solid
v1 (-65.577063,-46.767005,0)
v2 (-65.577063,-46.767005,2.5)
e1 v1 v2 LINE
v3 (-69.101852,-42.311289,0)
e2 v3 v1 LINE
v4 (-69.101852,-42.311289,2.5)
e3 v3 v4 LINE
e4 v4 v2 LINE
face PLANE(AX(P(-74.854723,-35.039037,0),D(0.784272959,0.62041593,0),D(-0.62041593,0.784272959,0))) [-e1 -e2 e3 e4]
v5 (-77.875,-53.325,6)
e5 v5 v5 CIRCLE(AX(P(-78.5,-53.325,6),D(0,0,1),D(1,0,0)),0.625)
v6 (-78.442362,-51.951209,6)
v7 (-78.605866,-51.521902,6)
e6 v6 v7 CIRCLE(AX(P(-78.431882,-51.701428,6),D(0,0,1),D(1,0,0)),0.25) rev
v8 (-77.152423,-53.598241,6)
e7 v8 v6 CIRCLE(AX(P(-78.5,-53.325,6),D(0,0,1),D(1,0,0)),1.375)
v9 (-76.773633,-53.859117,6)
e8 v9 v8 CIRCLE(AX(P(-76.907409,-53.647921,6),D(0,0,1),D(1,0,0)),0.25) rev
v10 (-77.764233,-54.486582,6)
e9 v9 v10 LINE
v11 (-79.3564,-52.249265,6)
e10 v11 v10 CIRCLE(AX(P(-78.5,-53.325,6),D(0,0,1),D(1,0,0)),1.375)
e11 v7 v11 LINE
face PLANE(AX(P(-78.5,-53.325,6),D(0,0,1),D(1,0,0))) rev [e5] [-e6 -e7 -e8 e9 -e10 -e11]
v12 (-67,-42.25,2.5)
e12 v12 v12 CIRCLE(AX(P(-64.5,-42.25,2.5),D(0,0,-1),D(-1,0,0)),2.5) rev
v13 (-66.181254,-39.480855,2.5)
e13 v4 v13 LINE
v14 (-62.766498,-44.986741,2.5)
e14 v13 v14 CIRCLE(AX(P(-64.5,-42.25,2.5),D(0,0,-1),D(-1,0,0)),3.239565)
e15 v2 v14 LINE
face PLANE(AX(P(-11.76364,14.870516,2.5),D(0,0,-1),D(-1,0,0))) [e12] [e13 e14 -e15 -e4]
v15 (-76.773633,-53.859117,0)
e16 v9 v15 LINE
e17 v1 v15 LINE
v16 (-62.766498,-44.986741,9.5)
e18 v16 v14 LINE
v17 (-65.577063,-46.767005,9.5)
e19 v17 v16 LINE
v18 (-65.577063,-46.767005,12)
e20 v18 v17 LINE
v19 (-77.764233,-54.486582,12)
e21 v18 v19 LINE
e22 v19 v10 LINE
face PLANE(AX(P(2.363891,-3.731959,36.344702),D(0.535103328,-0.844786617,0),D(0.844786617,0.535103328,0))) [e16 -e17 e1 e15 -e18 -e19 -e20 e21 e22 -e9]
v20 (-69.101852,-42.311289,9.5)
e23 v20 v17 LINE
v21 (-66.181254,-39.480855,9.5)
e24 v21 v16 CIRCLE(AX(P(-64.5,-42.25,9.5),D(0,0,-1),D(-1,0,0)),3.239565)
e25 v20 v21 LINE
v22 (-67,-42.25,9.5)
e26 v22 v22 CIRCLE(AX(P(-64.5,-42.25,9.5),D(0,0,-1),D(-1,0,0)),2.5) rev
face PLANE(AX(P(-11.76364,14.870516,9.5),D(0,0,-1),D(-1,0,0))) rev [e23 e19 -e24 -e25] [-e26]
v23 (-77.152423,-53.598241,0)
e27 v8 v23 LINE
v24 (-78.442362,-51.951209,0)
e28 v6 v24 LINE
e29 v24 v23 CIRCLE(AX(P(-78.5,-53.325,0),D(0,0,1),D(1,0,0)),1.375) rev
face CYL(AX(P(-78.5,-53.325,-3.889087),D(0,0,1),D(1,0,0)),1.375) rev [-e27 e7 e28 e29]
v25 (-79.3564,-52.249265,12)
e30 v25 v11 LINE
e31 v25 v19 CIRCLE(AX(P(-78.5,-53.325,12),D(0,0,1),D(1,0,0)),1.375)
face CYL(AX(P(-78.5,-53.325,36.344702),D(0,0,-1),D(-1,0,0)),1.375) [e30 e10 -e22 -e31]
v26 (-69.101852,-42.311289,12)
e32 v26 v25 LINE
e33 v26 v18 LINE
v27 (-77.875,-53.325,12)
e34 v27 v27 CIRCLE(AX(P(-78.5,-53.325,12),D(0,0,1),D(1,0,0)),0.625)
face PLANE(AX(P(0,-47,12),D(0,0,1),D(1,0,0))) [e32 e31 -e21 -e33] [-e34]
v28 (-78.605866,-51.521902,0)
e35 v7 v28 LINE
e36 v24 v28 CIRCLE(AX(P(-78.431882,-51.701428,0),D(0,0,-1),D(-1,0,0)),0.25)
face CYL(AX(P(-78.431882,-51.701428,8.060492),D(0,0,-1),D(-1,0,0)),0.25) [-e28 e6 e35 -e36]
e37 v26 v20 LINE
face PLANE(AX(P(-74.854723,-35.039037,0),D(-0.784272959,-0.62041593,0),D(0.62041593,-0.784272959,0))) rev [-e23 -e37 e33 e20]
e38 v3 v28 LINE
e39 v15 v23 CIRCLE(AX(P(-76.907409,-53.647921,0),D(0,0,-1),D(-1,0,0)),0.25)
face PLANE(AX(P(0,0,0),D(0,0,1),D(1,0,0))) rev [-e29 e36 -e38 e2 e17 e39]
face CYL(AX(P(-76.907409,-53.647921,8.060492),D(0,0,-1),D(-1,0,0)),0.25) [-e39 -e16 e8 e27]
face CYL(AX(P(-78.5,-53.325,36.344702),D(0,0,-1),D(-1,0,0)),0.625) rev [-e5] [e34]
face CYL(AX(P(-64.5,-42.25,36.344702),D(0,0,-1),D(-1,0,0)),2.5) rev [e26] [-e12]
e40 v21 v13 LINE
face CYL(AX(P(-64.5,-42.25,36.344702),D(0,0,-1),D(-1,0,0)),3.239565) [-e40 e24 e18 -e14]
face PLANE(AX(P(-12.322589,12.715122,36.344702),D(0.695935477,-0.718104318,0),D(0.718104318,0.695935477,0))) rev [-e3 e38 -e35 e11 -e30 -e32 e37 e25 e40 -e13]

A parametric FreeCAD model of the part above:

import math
import FreeCAD as App
import Part
import Sketcher

V = App.Vector
Q = App.Units.Quantity


def add_polygon(sketch, points):
    """Adds a closed chain of lines whose ends are joined by coincident constraints."""
    first, n = sketch.GeometryCount, len(points)
    for a, b in zip(points, points[1:] + points[:1]):
        sketch.addGeometry(Part.LineSegment(App.Vector(*a, 0), App.Vector(*b, 0)), False)
    for i in range(n):
        sketch.addConstraint(Sketcher.Constraint("Coincident", first + i, 2, first + (i + 1) % n, 1))

doc = App.newDocument("Part")
body = doc.addObject("PartDesign::Body", "Body")

# Sketch on XY plane
sketch1 = doc.addObject("Sketcher::SketchObject", "Sketch")
body.addObject(sketch1)
sketch1.AttachmentSupport = (doc.XY_Plane, [""])
sketch1.MapMode = "FlatFace"
sketch1.addGeometry(Part.ArcOfCircle(Part.Circle(V(-64.5, -42.2, 0), V(0, 0, 1), 3.2), math.radians(0), math.radians(121)), False)
sketch1.addGeometry(Part.LineSegment(V(-66.2, -39.5, 0), V(-67.2, -40.5, 0)), False)
sketch1.addGeometry(Part.LineSegment(V(-67.2, -40.5, 0), V(-71.4, -44.5, 0)), False)
sketch1.addGeometry(Part.LineSegment(V(-71.4, -44.5, 0), V(-79.4, -52.2, 0)), False)
sketch1.addGeometry(Part.ArcOfCircle(Part.Circle(V(-78.5, -53.3, 0), V(0, 0, 1), 1.4), math.radians(129), math.radians(302)), False)
sketch1.addGeometry(Part.LineSegment(V(-77.8, -54.5, 0), V(-65.9, -47, 0)), False)
sketch1.addGeometry(Part.LineSegment(V(-65.9, -47, 0), V(-62.8, -45, 0)), False)
sketch1.addGeometry(Part.ArcOfCircle(Part.Circle(V(-64.5, -42.2, 0), V(0, 0, 1), 3.2), math.radians(-58), math.radians(0)), False)
sketch1.addGeometry(Part.Circle(V(-64.5, -42.2, 0), V(0, 0, 1), 2.5), False)
sketch1.addGeometry(Part.Circle(V(-78.5, -53.3, 0), V(0, 0, 1), 0.6), False)
sketch1.addConstraint(Sketcher.Constraint("Coincident", 0, 2, 1, 1))
sketch1.addConstraint(Sketcher.Constraint("Coincident", 1, 2, 2, 1))
sketch1.addConstraint(Sketcher.Constraint("Coincident", 2, 2, 3, 1))
sketch1.addConstraint(Sketcher.Constraint("Coincident", 3, 2, 4, 1))
sketch1.addConstraint(Sketcher.Constraint("Tangent", 4, 2, 5, 1))
sketch1.addConstraint(Sketcher.Constraint("Coincident", 5, 2, 6, 1))
sketch1.addConstraint(Sketcher.Constraint("Tangent", 6, 2, 7, 1))
sketch1.addConstraint(Sketcher.Constraint("Tangent", 7, 2, 0, 1))
sketch1.addConstraint(Sketcher.Constraint("Coincident", 8, 3, 0, 3))
sketch1.addConstraint(Sketcher.Constraint("Coincident", 9, 3, 4, 3))
sketch1.addConstraint(Sketcher.Constraint("Equal", 0, 7))
sketch1.addConstraint(Sketcher.Constraint("Parallel", 1, 2))
sketch1.addConstraint(Sketcher.Constraint("Parallel", 2, 3))
sketch1.addConstraint(Sketcher.Constraint("Parallel", 5, 6))
sketch1.addConstraint(Sketcher.Constraint("Horizontal", 8, 3, 7, 2))
sketch1.addConstraint(Sketcher.Constraint("Diameter", 8, Q("5 mm")))
sketch1.addConstraint(Sketcher.Constraint("Diameter", 9, Q("1.25 mm")))
sketch1.addConstraint(Sketcher.Constraint("DistanceY", 5, 2, -1, 1, Q("47 mm")))
sketch1.addConstraint(Sketcher.Constraint("Radius", 4, Q("1.375 mm")))
sketch1.addConstraint(Sketcher.Constraint("DistanceX", 4, 3, 0, 3, Q("14 mm")))
sketch1.addConstraint(Sketcher.Constraint("DistanceX", 0, 3, -1, 1, Q("64.5 mm")))
sketch1.addConstraint(Sketcher.Constraint("DistanceY", 0, 3, -1, 1, Q("42.25 mm")))
sketch1.addConstraint(Sketcher.Constraint("DistanceY", 4, 3, -1, 1, Q("53.325 mm")))
sketch1.addConstraint(Sketcher.Constraint("Radius", 0, Q("3.239565 mm")))
sketch1.addConstraint(Sketcher.Constraint("DistanceX", 3, 2, -1, 1, Q("79.3564 mm")))
sketch1.addConstraint(Sketcher.Constraint("DistanceY", 3, 2, 1, 2, Q("11.7665 mm")))
sketch1.addConstraint(Sketcher.Constraint("Distance", 1, Q("1.439661 mm")))
sketch1.addConstraint(Sketcher.Constraint("DistanceY", 2, 2, 1, 2, Q("4.060161 mm")))
pad1 = doc.addObject("PartDesign::Pad", "Pad")
body.addObject(pad1)
pad1.Profile = sketch1
pad1.Length = 12

# Sketch on XY plane
sketch2 = doc.addObject("Sketcher::SketchObject", "Sketch001")
body.addObject(sketch2)
sketch2.AttachmentSupport = (doc.XY_Plane, [""])
sketch2.MapMode = "FlatFace"
sketch2.addGeometry(Part.Circle(V(-78.5, -53.3, 0), V(0, 0, 1), 1.4), False)
sketch2.addGeometry(Part.Circle(V(-78.5, -53.3, 0), V(0, 0, 1), 0.6), False)
sketch2.addConstraint(Sketcher.Constraint("Coincident", 1, 3, 0, 3))
sketch2.addConstraint(Sketcher.Constraint("Diameter", 0, Q("2.75 mm")))
sketch2.addConstraint(Sketcher.Constraint("Diameter", 1, Q("1.25 mm")))
sketch2.addConstraint(Sketcher.Constraint("DistanceX", 0, 3, -1, 1, Q("78.5 mm")))
sketch2.addConstraint(Sketcher.Constraint("DistanceY", 0, 3, -1, 1, Q("53.325 mm")))
pocket1 = doc.addObject("PartDesign::Pocket", "Pocket")
body.addObject(pocket1)
pocket1.Profile = sketch2
pocket1.Length = 6
pocket1.Reversed = True

# Sketch on XY plane
sketch3 = doc.addObject("Sketcher::SketchObject", "Sketch002")
body.addObject(sketch3)
sketch3.AttachmentSupport = (doc.XY_Plane, [""])
sketch3.MapMode = "FlatFace"
sketch3.addGeometry(Part.ArcOfCircle(Part.Circle(V(-78.43, -51.7, 0), V(0, 0, 1), 0.25), math.radians(134), math.radians(180)), False)
sketch3.addGeometry(Part.ArcOfCircle(Part.Circle(V(-78.43, -51.7, 0), V(0, 0, 1), 0.25), math.radians(180), math.radians(268)), False)
sketch3.addGeometry(Part.ArcOfCircle(Part.Circle(V(-78.5, -53.32, 0), V(0, 0, 1), 1.37), math.radians(82.84), math.radians(87.6)), False)
sketch3.addGeometry(Part.LineSegment(V(-78.33, -51.96, 0), V(-78.33, -52.57, 0)), False)
sketch3.addGeometry(Part.LineSegment(V(-78.33, -52.57, 0), V(-79.69, -52.57, 0)), False)
sketch3.addGeometry(Part.LineSegment(V(-79.69, -52.57, 0), V(-79.69, -51.11, 0)), False)
sketch3.addGeometry(Part.LineSegment(V(-79.69, -51.11, 0), V(-78.33, -51.11, 0)), False)
sketch3.addGeometry(Part.LineSegment(V(-78.33, -51.11, 0), V(-78.33, -51.25, 0)), False)
sketch3.addGeometry(Part.LineSegment(V(-78.33, -51.25, 0), V(-78.61, -51.52, 0)), False)
sketch3.addGeometry(Part.LineSegment(V(-76.77, -53.86, 0), V(-76.56, -53.72, 0)), False)
sketch3.addGeometry(Part.LineSegment(V(-76.56, -53.72, 0), V(-76.56, -54.63, 0)), False)
sketch3.addGeometry(Part.LineSegment(V(-76.56, -54.63, 0), V(-77.83, -54.63, 0)), False)
sketch3.addGeometry(Part.LineSegment(V(-77.83, -54.63, 0), V(-77.83, -53.01, 0)), False)
sketch3.addGeometry(Part.LineSegment(V(-77.83, -53.01, 0), V(-77.16, -53.01, 0)), False)
sketch3.addGeometry(Part.ArcOfCircle(Part.Circle(V(-78.5, -53.32, 0), V(0, 0, 1), 1.37), math.radians(-11), math.radians(13)), False)
sketch3.addGeometry(Part.ArcOfCircle(Part.Circle(V(-76.91, -53.65, 0), V(0, 0, 1), 0.25), math.radians(169), math.radians(302)), False)
sketch3.addConstraint(Sketcher.Constraint("Tangent", 0, 2, 1, 1))
sketch3.addConstraint(Sketcher.Constraint("Tangent", 1, 2, 2, 2))
sketch3.addConstraint(Sketcher.Constraint("Coincident", 2, 1, 3, 1))
sketch3.addConstraint(Sketcher.Constraint("Coincident", 3, 2, 4, 1))
sketch3.addConstraint(Sketcher.Constraint("Coincident", 4, 2, 5, 1))
sketch3.addConstraint(Sketcher.Constraint("Coincident", 5, 2, 6, 1))
sketch3.addConstraint(Sketcher.Constraint("Coincident", 6, 2, 7, 1))
sketch3.addConstraint(Sketcher.Constraint("Coincident", 7, 2, 8, 1))
sketch3.addConstraint(Sketcher.Constraint("Tangent", 8, 2, 0, 1))
sketch3.addConstraint(Sketcher.Constraint("Coincident", 9, 2, 10, 1))
sketch3.addConstraint(Sketcher.Constraint("Coincident", 10, 2, 11, 1))
sketch3.addConstraint(Sketcher.Constraint("Coincident", 11, 2, 12, 1))
sketch3.addConstraint(Sketcher.Constraint("Coincident", 12, 2, 13, 1))
sketch3.addConstraint(Sketcher.Constraint("Coincident", 13, 2, 14, 2))
sketch3.addConstraint(Sketcher.Constraint("Tangent", 14, 1, 15, 1))
sketch3.addConstraint(Sketcher.Constraint("Tangent", 15, 2, 9, 1))
sketch3.addConstraint(Sketcher.Constraint("Vertical", 3))
sketch3.addConstraint(Sketcher.Constraint("Horizontal", 4))
sketch3.addConstraint(Sketcher.Constraint("Vertical", 5))
sketch3.addConstraint(Sketcher.Constraint("Horizontal", 6))
sketch3.addConstraint(Sketcher.Constraint("Vertical", 7))
sketch3.addConstraint(Sketcher.Constraint("Vertical", 10))
sketch3.addConstraint(Sketcher.Constraint("Horizontal", 11))
sketch3.addConstraint(Sketcher.Constraint("Vertical", 12))
sketch3.addConstraint(Sketcher.Constraint("Horizontal", 13))
sketch3.addConstraint(Sketcher.Constraint("Coincident", 14, 3, 2, 3))
sketch3.addConstraint(Sketcher.Constraint("Equal", 0, 1))
sketch3.addConstraint(Sketcher.Constraint("Equal", 2, 14))
sketch3.addConstraint(Sketcher.Constraint("Equal", 1, 15))
sketch3.addConstraint(Sketcher.Constraint("Horizontal", 1, 3, 0, 2))
sketch3.addConstraint(Sketcher.Constraint("Vertical", 3, 2, 6, 2))
sketch3.addConstraint(Sketcher.Constraint("Radius", 0, Q("0.25 mm")))
sketch3.addConstraint(Sketcher.Constraint("Radius", 2, Q("1.375 mm")))
sketch3.addConstraint(Sketcher.Constraint("DistanceX", 2, 3, -1, 1, Q("78.5 mm")))
sketch3.addConstraint(Sketcher.Constraint("DistanceY", 2, 3, -1, 1, Q("53.325 mm")))
sketch3.addConstraint(Sketcher.Constraint("DistanceX", 4, 2, 4, 1, Q("1.362938 mm")))
sketch3.addConstraint(Sketcher.Constraint("DistanceX", 11, 2, 11, 1, Q("1.272832 mm")))
sketch3.addConstraint(Sketcher.Constraint("DistanceY", 3, 2, 3, 1, Q("0.60728 mm")))
sketch3.addConstraint(Sketcher.Constraint("DistanceY", 5, 1, 5, 2, Q("1.458849 mm")))
sketch3.addConstraint(Sketcher.Constraint("DistanceY", 7, 2, 7, 1, Q("0.143981 mm")))
sketch3.addConstraint(Sketcher.Constraint("DistanceY", 12, 1, 12, 2, Q("1.620348 mm")))
sketch3.addConstraint(Sketcher.Constraint("DistanceX", 13, 2, 15, 3, Q("0.255101 mm")))
sketch3.addConstraint(Sketcher.Constraint("DistanceY", 15, 2, 9, 2, Q("0.135501 mm")))
sketch3.addConstraint(Sketcher.Constraint("DistanceX", 13, 1, 13, 2, Q("0.670035 mm")))
sketch3.addConstraint(Sketcher.Constraint("DistanceY", 10, 2, 10, 1, Q("0.902755 mm")))
sketch3.addConstraint(Sketcher.Constraint("DistanceY", 0, 3, -1, 1, Q("51.701428 mm")))
sketch3.addConstraint(Sketcher.Constraint("DistanceY", 2, 1, -1, 1, Q("51.960731 mm")))
pocket2 = doc.addObject("PartDesign::Pocket", "Pocket001")
body.addObject(pocket2)
pocket2.Profile = sketch3
pocket2.Length = 6
pocket2.Reversed = True

# Sketch on an angled plane
sketch4 = doc.addObject("Sketcher::SketchObject", "Sketch003")
body.addObject(sketch4)
sketch4.Placement = App.Placement(V(-4.269265, 5.396814, 0), App.Rotation(V(-0.784272959, -0.62041593, 0), V(0, 0, -1), V(0.62041593, -0.784272959, 0), "ZXY"))
add_polygon(sketch4, [(73.4, 0), (73.4, -2.5), (80.4, -2.5), (80.4, 0)])  # lines 0-3
add_polygon(sketch4, [(73.4, -9.5), (73.4, -12), (80.4, -12), (80.4, -9.5)])  # lines 4-7
sketch4.addConstraint(Sketcher.Constraint("Vertical", 0))
sketch4.addConstraint(Sketcher.Constraint("Horizontal", 1))
sketch4.addConstraint(Sketcher.Constraint("Vertical", 2))
sketch4.addConstraint(Sketcher.Constraint("Horizontal", 3))
sketch4.addConstraint(Sketcher.Constraint("Vertical", 4))
sketch4.addConstraint(Sketcher.Constraint("Horizontal", 5))
sketch4.addConstraint(Sketcher.Constraint("Vertical", 6))
sketch4.addConstraint(Sketcher.Constraint("Horizontal", 7))
sketch4.addConstraint(Sketcher.Constraint("PointOnObject", 2, 2, -1))
sketch4.addConstraint(Sketcher.Constraint("Vertical", 3, 2, 4, 2))
sketch4.addConstraint(Sketcher.Constraint("Vertical", 2, 2, 5, 2))
sketch4.addConstraint(Sketcher.Constraint("Equal", 2, 4))
sketch4.addConstraint(Sketcher.Constraint("DistanceY", 0, 2, 0, 1, Q("2.5 mm")))
sketch4.addConstraint(Sketcher.Constraint("DistanceY", 4, 2, -1, 1, Q("12 mm")))
sketch4.addConstraint(Sketcher.Constraint("DistanceX", 1, 1, 1, 2, Q("7.03457 mm")))
sketch4.addConstraint(Sketcher.Constraint("DistanceX", -1, 1, 0, 2, Q("73.410742 mm")))
pocket3 = doc.addObject("PartDesign::Pocket", "Pocket002")
body.addObject(pocket3)
pocket3.Profile = sketch4
pocket3.Type = "ThroughAll"
pocket3.Midplane = True

doc.recompute()
